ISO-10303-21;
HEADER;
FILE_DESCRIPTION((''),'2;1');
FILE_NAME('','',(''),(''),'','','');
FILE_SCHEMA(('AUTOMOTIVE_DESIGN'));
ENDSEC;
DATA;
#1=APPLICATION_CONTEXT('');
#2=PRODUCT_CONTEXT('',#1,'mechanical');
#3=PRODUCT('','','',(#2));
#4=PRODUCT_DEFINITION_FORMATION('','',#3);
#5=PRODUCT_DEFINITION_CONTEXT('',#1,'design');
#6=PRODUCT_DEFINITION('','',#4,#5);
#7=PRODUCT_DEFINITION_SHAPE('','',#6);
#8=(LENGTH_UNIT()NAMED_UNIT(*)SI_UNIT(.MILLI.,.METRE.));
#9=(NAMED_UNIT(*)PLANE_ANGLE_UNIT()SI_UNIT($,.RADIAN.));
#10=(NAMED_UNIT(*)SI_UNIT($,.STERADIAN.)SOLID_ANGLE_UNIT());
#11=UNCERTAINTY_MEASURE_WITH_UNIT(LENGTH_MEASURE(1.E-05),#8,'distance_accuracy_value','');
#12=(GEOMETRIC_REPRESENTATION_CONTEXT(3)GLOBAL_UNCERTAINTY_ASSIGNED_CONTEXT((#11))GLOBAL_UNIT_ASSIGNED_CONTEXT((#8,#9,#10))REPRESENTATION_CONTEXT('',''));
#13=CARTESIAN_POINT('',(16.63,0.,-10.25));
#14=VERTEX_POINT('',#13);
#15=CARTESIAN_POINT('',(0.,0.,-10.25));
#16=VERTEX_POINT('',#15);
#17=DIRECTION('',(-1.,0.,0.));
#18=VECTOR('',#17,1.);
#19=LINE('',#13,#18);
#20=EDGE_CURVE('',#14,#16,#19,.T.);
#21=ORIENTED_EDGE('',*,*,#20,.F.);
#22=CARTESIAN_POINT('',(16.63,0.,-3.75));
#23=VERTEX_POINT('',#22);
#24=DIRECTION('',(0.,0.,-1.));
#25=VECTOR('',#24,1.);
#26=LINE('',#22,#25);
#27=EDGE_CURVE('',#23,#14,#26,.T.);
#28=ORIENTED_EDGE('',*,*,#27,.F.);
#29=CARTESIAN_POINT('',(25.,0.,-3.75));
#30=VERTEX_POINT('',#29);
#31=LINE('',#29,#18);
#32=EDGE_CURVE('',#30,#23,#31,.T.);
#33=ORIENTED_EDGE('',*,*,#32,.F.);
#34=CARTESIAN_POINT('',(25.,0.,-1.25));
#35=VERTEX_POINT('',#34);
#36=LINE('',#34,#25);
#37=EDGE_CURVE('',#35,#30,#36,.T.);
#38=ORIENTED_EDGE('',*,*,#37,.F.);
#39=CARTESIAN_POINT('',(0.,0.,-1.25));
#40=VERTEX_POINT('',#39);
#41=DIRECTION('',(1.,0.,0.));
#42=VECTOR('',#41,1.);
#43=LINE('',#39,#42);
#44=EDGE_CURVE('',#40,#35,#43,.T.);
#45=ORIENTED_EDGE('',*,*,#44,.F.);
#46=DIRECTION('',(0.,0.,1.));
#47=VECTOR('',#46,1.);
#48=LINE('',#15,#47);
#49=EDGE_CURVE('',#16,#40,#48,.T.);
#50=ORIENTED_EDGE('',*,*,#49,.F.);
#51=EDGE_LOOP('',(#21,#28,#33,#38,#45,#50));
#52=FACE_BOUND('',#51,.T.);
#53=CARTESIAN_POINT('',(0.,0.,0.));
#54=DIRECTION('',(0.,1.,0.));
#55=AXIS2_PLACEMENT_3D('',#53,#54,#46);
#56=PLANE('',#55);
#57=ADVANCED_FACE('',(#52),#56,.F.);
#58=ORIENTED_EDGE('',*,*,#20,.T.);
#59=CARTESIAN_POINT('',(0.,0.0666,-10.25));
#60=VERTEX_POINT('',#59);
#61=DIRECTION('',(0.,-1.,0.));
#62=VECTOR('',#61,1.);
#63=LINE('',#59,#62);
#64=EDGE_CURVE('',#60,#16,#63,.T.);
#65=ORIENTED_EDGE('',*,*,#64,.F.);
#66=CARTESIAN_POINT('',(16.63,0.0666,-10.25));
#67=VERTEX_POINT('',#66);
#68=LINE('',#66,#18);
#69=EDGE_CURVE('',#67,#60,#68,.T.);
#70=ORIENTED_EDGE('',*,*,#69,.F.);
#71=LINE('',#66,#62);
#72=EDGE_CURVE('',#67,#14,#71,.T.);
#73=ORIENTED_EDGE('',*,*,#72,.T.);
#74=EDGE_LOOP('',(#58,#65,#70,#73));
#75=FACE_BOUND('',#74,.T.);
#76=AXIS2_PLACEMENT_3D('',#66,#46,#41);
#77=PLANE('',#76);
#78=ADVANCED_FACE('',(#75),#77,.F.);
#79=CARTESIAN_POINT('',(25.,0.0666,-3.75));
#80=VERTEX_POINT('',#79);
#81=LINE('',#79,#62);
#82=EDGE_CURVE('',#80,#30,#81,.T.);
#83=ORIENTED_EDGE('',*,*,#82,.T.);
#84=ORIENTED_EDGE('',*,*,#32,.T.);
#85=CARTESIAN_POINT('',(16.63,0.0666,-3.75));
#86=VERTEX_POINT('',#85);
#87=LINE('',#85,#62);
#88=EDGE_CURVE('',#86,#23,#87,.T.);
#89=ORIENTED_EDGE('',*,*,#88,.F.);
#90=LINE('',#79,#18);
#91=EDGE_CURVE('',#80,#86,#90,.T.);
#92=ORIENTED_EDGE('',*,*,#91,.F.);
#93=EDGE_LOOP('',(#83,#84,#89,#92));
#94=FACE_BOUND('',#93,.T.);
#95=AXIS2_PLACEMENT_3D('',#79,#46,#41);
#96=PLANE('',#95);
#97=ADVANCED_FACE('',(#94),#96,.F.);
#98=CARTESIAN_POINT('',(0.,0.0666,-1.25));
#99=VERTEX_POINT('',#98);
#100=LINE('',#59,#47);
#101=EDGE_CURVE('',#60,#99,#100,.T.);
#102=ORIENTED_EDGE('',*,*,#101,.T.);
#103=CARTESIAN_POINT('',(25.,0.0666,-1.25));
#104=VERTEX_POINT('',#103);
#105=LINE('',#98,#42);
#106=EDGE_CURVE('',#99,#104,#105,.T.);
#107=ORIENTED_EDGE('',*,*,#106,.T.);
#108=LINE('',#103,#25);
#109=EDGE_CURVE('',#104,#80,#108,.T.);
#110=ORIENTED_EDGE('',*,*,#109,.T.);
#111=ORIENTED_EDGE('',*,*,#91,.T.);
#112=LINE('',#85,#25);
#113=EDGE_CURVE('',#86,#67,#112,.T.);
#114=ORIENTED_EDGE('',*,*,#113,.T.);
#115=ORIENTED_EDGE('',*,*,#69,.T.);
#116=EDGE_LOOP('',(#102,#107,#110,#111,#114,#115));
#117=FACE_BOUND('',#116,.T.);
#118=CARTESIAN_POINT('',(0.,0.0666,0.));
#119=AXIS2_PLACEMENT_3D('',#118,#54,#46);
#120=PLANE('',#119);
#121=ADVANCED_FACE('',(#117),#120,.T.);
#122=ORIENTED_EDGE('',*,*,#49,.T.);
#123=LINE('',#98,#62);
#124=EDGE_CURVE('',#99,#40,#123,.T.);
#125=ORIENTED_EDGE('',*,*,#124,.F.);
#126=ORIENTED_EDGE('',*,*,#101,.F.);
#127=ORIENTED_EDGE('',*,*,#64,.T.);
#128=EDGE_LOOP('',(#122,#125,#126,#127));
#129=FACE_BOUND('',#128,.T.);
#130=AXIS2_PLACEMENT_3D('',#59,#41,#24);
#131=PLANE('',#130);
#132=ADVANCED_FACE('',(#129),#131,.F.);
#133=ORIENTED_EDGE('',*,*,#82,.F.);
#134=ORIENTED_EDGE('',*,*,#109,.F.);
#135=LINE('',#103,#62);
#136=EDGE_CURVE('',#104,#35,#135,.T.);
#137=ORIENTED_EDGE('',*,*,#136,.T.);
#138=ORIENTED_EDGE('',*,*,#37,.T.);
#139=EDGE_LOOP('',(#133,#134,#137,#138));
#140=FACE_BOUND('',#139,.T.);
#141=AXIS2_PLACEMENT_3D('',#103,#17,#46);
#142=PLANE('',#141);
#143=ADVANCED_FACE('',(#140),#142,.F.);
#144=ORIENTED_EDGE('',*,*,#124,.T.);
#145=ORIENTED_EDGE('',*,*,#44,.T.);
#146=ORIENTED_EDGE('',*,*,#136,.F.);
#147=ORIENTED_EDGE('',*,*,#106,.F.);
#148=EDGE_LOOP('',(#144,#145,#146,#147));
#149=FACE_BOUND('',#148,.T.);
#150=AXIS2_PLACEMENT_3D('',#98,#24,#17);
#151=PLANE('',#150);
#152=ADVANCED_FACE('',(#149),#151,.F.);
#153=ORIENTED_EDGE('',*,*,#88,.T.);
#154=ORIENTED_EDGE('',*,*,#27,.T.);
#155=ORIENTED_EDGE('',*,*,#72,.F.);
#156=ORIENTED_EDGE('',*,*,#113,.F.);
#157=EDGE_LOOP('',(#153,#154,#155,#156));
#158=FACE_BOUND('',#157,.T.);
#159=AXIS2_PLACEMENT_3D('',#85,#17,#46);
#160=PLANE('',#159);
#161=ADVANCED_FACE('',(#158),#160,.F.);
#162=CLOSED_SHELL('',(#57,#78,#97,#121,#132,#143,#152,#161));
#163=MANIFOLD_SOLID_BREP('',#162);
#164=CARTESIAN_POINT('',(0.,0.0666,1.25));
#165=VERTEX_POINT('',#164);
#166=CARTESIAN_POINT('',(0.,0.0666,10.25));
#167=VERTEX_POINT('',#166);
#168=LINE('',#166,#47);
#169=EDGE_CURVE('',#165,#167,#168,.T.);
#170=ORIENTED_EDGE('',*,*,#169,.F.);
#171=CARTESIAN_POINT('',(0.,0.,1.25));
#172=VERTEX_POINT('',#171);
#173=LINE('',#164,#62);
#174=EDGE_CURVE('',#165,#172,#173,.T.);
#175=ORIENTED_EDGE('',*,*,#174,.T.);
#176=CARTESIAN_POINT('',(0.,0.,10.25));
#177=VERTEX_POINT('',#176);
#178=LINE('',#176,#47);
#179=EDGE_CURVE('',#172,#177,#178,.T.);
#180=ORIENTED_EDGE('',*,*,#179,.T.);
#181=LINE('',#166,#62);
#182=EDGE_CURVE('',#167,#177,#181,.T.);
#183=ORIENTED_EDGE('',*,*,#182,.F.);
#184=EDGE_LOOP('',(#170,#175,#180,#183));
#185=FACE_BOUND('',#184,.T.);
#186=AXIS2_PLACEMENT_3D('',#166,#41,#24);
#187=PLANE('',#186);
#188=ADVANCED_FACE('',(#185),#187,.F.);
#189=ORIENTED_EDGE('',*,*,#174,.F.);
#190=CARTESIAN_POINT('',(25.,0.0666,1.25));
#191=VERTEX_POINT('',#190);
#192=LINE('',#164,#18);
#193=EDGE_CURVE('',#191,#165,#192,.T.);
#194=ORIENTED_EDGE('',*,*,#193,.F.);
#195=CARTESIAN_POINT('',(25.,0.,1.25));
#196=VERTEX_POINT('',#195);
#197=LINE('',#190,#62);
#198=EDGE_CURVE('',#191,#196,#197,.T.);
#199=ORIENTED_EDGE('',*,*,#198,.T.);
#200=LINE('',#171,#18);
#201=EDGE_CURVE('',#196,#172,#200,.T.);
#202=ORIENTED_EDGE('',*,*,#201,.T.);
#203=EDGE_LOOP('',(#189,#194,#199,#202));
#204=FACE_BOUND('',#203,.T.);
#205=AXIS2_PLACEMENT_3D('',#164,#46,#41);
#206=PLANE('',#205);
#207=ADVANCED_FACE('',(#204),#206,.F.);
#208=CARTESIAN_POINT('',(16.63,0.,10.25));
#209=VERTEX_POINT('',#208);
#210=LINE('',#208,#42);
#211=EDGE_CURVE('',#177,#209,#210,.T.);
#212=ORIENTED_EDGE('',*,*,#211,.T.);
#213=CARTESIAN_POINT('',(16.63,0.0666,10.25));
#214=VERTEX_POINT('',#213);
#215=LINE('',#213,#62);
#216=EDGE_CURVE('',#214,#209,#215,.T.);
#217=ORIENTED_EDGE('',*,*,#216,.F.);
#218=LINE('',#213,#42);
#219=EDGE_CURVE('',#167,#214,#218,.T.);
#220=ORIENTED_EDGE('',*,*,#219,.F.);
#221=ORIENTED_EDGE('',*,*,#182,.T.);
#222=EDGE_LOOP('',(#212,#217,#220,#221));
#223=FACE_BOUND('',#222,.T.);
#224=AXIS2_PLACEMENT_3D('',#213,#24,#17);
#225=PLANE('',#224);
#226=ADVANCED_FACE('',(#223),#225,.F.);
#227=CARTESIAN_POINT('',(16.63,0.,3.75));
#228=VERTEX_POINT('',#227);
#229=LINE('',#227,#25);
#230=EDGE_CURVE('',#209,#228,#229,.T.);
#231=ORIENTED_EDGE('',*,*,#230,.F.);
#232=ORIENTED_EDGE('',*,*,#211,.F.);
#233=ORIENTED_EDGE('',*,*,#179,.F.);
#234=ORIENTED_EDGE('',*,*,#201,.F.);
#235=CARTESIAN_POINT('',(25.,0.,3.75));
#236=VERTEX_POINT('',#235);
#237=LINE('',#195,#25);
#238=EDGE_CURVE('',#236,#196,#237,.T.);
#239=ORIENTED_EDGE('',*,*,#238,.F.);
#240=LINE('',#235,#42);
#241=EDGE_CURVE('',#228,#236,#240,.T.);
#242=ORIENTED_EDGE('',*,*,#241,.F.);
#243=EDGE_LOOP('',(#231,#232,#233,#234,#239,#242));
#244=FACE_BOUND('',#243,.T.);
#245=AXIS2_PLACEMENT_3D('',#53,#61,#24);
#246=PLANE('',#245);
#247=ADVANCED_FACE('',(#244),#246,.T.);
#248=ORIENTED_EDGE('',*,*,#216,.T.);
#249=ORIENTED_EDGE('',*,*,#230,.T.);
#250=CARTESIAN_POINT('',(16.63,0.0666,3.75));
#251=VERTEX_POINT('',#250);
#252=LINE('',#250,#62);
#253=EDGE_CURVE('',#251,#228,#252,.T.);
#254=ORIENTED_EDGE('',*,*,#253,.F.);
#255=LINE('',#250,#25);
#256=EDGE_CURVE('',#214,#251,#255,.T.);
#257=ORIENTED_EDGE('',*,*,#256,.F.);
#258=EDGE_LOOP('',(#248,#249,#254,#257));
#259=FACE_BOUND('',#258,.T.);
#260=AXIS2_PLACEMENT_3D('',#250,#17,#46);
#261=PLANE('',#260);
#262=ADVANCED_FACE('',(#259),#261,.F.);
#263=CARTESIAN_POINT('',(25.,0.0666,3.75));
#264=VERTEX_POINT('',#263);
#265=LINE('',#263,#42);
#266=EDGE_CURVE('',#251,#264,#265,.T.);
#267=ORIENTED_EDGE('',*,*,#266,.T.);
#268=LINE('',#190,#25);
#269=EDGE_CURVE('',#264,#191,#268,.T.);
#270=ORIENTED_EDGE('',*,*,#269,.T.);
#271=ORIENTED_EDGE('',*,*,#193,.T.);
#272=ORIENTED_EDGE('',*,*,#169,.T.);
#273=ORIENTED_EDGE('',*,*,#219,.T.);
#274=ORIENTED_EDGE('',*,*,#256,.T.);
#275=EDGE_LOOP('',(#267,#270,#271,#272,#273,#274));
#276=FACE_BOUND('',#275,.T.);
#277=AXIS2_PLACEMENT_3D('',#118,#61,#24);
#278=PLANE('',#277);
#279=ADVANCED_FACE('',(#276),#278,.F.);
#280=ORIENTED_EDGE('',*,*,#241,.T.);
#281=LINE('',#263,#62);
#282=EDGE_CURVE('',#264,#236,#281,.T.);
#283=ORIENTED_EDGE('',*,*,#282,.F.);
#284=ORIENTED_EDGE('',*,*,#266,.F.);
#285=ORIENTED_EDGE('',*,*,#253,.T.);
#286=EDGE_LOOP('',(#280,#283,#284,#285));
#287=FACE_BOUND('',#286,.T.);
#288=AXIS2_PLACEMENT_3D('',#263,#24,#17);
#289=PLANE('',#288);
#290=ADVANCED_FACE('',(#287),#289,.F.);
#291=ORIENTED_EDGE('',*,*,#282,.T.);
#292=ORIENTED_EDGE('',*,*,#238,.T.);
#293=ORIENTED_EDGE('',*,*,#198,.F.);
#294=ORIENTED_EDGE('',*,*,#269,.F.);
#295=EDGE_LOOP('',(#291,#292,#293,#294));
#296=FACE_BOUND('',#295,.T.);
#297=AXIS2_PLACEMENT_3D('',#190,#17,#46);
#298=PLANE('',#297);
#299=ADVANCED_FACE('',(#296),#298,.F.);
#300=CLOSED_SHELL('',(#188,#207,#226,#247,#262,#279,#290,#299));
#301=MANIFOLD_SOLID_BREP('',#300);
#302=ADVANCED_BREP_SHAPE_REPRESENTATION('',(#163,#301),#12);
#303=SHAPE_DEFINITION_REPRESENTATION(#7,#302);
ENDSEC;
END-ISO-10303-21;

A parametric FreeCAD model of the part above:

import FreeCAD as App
import Part
import Sketcher
Q = App.Units.Quantity

doc = App.newDocument("Part")
body = doc.addObject("PartDesign::Body", "Body")

# Sketch on XZ plane
sketch1 = body.newObject("Sketcher::SketchObject", "Sketch")
sketch1.AttachmentSupport = (doc.getObject("XZ_Plane"), [""])
sketch1.MapMode = "FlatFace"
sketch1.addGeometry(Part.LineSegment(App.Vector(0, -1.2, 0), App.Vector(25, -1.2, 0)), False)
sketch1.addGeometry(Part.LineSegment(App.Vector(25, -1.2, 0), App.Vector(25, -3.8, 0)), False)
sketch1.addGeometry(Part.LineSegment(App.Vector(25, -3.8, 0), App.Vector(16.6, -3.8, 0)), False)
sketch1.addGeometry(Part.LineSegment(App.Vector(16.6, -3.8, 0), App.Vector(16.6, -10.2, 0)), False)
sketch1.addGeometry(Part.LineSegment(App.Vector(16.6, -10.2, 0), App.Vector(0, -10.2, 0)), False)
sketch1.addGeometry(Part.LineSegment(App.Vector(0, -10.2, 0), App.Vector(0, -1.2, 0)), False)
sketch1.addConstraint(Sketcher.Constraint("Coincident", 0, 2, 1, 1))
sketch1.addConstraint(Sketcher.Constraint("Coincident", 1, 2, 2, 1))
sketch1.addConstraint(Sketcher.Constraint("Coincident", 2, 2, 3, 1))
sketch1.addConstraint(Sketcher.Constraint("Coincident", 3, 2, 4, 1))
sketch1.addConstraint(Sketcher.Constraint("Coincident", 4, 2, 5, 1))
sketch1.addConstraint(Sketcher.Constraint("Coincident", 5, 2, 0, 1))
sketch1.addConstraint(Sketcher.Constraint("Horizontal", 0))
sketch1.addConstraint(Sketcher.Constraint("Vertical", 1))
sketch1.addConstraint(Sketcher.Constraint("Horizontal", 2))
sketch1.addConstraint(Sketcher.Constraint("Vertical", 3))
sketch1.addConstraint(Sketcher.Constraint("Horizontal", 4))
sketch1.addConstraint(Sketcher.Constraint("Vertical", 5))
sketch1.addConstraint(Sketcher.Constraint("PointOnObject", 4, 2, -2))
sketch1.addConstraint(Sketcher.Constraint("DistanceX", 0, 1, 0, 2, Q("25 mm")))
sketch1.addConstraint(Sketcher.Constraint("DistanceY", 5, 1, 5, 2, Q("9 mm")))
sketch1.addConstraint(Sketcher.Constraint("DistanceY", 1, 2, 1, 1, Q("2.5 mm")))
sketch1.addConstraint(Sketcher.Constraint("DistanceX", 2, 2, 2, 1, Q("8.37 mm")))
sketch1.addConstraint(Sketcher.Constraint("DistanceY", 0, 2, -1, 1, Q("1.25 mm")))
pad1 = body.newObject("PartDesign::Pad", "Pad")
pad1.Profile = sketch1
pad1.Length = 0.0666
pad1.Reversed = True
body2 = doc.addObject("PartDesign::Body", "Body001")

# Sketch on XZ plane
sketch2 = body2.newObject("Sketcher::SketchObject", "Sketch001")
sketch2.AttachmentSupport = (doc.getObject("XZ_Plane001"), [""])
sketch2.MapMode = "FlatFace"
sketch2.addGeometry(Part.LineSegment(App.Vector(25, 1.2, 0), App.Vector(0, 1.2, 0)), False)
sketch2.addGeometry(Part.LineSegment(App.Vector(0, 1.2, 0), App.Vector(0, 10.2, 0)), False)
sketch2.addGeometry(Part.LineSegment(App.Vector(0, 10.2, 0), App.Vector(16.6, 10.2, 0)), False)
sketch2.addGeometry(Part.LineSegment(App.Vector(16.6, 10.2, 0), App.Vector(16.6, 3.8, 0)), False)
sketch2.addGeometry(Part.LineSegment(App.Vector(16.6, 3.8, 0), App.Vector(25, 3.8, 0)), False)
sketch2.addGeometry(Part.LineSegment(App.Vector(25, 3.8, 0), App.Vector(25, 1.2, 0)), False)
sketch2.addConstraint(Sketcher.Constraint("Coincident", 0, 2, 1, 1))
sketch2.addConstraint(Sketcher.Constraint("Coincident", 1, 2, 2, 1))
sketch2.addConstraint(Sketcher.Constraint("Coincident", 2, 2, 3, 1))
sketch2.addConstraint(Sketcher.Constraint("Coincident", 3, 2, 4, 1))
sketch2.addConstraint(Sketcher.Constraint("Coincident", 4, 2, 5, 1))
sketch2.addConstraint(Sketcher.Constraint("Coincident", 5, 2, 0, 1))
sketch2.addConstraint(Sketcher.Constraint("Horizontal", 0))
sketch2.addConstraint(Sketcher.Constraint("Vertical", 1))
sketch2.addConstraint(Sketcher.Constraint("Horizontal", 2))
sketch2.addConstraint(Sketcher.Constraint("Vertical", 3))
sketch2.addConstraint(Sketcher.Constraint("Horizontal", 4))
sketch2.addConstraint(Sketcher.Constraint("Vertical", 5))
sketch2.addConstraint(Sketcher.Constraint("PointOnObject", 0, 2, -2))
sketch2.addConstraint(Sketcher.Constraint("DistanceX", 0, 2, 0, 1, Q("25 mm")))
sketch2.addConstraint(Sketcher.Constraint("DistanceY", 1, 1, 1, 2, Q("9 mm")))
sketch2.addConstraint(Sketcher.Constraint("DistanceY", 3, 2, 3, 1, Q("6.5 mm")))
sketch2.addConstraint(Sketcher.Constraint("DistanceX", 2, 1, 2, 2, Q("16.63 mm")))
sketch2.addConstraint(Sketcher.Constraint("DistanceY", -1, 1, 0, 2, Q("1.25 mm")))
pad2 = body2.newObject("PartDesign::Pad", "Pad001")
pad2.Profile = sketch2
pad2.Length = 0.0666
pad2.Reversed = True

doc.recompute()
